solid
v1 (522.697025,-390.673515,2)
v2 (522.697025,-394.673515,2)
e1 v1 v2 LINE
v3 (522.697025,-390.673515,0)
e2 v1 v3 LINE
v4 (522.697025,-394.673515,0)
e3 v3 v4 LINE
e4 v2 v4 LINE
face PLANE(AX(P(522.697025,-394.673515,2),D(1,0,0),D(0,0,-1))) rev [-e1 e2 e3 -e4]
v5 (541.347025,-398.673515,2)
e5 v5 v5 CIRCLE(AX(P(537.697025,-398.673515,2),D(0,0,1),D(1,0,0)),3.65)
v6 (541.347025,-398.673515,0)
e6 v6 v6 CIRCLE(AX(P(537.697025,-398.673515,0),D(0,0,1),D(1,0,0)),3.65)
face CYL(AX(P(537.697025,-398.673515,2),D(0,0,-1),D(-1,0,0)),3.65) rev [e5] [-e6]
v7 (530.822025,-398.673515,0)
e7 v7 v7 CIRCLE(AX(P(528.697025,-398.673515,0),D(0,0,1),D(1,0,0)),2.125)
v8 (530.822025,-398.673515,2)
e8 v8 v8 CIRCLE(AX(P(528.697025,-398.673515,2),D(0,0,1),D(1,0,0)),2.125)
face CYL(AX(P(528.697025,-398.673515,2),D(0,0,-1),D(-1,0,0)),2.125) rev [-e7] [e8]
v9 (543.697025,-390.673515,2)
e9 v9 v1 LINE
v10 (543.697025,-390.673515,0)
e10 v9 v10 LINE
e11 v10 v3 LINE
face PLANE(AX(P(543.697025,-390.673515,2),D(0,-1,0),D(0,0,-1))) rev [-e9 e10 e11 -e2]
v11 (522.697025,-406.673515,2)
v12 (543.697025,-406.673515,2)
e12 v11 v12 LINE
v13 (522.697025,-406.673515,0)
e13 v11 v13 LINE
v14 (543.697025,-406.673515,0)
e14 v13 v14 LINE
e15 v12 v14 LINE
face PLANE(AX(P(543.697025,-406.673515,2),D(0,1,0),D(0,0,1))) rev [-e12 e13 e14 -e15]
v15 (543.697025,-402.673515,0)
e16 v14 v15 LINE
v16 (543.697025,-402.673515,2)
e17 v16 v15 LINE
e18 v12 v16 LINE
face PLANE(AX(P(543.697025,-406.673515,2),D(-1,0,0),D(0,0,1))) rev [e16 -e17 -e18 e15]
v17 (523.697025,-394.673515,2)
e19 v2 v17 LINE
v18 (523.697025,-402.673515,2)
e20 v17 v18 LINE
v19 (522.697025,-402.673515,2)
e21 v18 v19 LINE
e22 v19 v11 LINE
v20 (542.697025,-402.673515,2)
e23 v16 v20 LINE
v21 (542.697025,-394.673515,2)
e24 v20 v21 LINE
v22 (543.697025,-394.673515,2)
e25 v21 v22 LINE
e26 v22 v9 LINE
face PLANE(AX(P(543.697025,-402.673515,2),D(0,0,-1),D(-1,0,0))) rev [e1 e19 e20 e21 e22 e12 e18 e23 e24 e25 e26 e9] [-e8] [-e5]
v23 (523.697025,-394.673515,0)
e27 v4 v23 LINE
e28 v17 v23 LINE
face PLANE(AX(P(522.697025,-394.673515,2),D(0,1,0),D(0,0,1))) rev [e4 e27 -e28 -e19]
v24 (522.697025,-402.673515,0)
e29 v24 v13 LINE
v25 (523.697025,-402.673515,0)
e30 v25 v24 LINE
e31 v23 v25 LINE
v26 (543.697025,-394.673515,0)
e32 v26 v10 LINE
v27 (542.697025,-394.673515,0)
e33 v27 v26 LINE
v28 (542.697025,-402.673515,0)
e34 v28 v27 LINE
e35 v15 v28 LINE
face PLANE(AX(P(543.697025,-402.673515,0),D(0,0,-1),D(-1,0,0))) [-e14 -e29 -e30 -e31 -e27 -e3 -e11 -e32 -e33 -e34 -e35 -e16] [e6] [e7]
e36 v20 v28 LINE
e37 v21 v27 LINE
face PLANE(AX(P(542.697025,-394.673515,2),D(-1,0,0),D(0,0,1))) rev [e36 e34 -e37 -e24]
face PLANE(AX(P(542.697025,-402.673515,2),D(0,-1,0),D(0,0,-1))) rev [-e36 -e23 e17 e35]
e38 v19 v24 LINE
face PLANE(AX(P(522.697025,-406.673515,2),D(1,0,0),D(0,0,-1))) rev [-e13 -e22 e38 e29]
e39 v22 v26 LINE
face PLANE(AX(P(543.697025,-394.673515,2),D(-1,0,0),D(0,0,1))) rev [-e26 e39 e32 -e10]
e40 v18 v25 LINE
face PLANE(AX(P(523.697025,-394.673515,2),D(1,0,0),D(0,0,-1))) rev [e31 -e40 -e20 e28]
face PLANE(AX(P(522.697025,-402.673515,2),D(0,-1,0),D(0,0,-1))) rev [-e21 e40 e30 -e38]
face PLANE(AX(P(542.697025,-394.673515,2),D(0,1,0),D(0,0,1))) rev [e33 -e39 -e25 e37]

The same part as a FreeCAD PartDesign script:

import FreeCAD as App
import Part
import Sketcher
Q = App.Units.Quantity


def add_polygon(sketch, points):
    """Adds a closed chain of lines whose ends are joined by coincident constraints."""
    first, n = sketch.GeometryCount, len(points)
    for a, b in zip(points, points[1:] + points[:1]):
        sketch.addGeometry(Part.LineSegment(App.Vector(*a, 0), App.Vector(*b, 0)), False)
    for i in range(n):
        sketch.addConstraint(Sketcher.Constraint("Coincident", first + i, 2, first + (i + 1) % n, 1))

doc = App.newDocument("Part")
body = doc.addObject("PartDesign::Body", "Body")

# Sketch on XY plane
sketch1 = body.newObject("Sketcher::SketchObject", "Sketch")
sketch1.AttachmentSupport = (doc.getObject("XY_Plane"), [""])
sketch1.MapMode = "FlatFace"
add_polygon(sketch1, [(522.7, -406.7), (543.7, -406.7), (543.7, -402.7), (542.7, -402.7), (542.7, -394.7), (543.7, -394.7), (543.7, -390.7), (522.7, -390.7), (522.7, -394.7), (523.7, -394.7), (523.7, -402.7), (522.7, -402.7)])  # lines 0-11
sketch1.addGeometry(Part.Circle(App.Vector(537.7, -398.7, 0), App.Vector(0, 0, 1), 3.6), False)  # 12
sketch1.addGeometry(Part.Circle(App.Vector(528.7, -398.7, 0), App.Vector(0, 0, 1), 2.1), False)  # 13
sketch1.addConstraint([
    Sketcher.Constraint("Horizontal", 0),
    Sketcher.Constraint("Vertical", 1),
    Sketcher.Constraint("Horizontal", 2),
    Sketcher.Constraint("Vertical", 3),
    Sketcher.Constraint("Horizontal", 4),
    Sketcher.Constraint("Vertical", 5),
    Sketcher.Constraint("Horizontal", 6),
    Sketcher.Constraint("Vertical", 7),
    Sketcher.Constraint("Horizontal", 8),
    Sketcher.Constraint("Vertical", 9),
    Sketcher.Constraint("Horizontal", 10),
    Sketcher.Constraint("Vertical", 11),
    Sketcher.Constraint("Horizontal", 12, 3, 13, 3),
    Sketcher.Constraint("Horizontal", 4, 2, 7, 2),
    Sketcher.Constraint("Horizontal", 2, 2, 9, 2),
    Sketcher.Constraint("Vertical", 1, 2, 4, 2),
    Sketcher.Constraint("Vertical", 7, 2, 10, 2),
    Sketcher.Constraint("Equal", 4, 8),
    Sketcher.Constraint("Equal", 1, 5),
    Sketcher.Constraint("Diameter", 12, Q("7.3 mm")),
    Sketcher.Constraint("Diameter", 13, Q("4.25 mm")),
    Sketcher.Constraint("DistanceX", 0, 1, 0, 2, Q("21 mm")),
    Sketcher.Constraint("DistanceX", 2, 2, 2, 1, Q("1 mm")),
    Sketcher.Constraint("DistanceY", 1, 1, 1, 2, Q("4 mm")),
    Sketcher.Constraint("DistanceY", 3, 1, 3, 2, Q("8 mm")),
    Sketcher.Constraint("DistanceX", 13, 3, 12, 3, Q("9 mm")),
    Sketcher.Constraint("DistanceX", 12, 3, 0, 2, Q("6 mm")),
    Sketcher.Constraint("DistanceY", 0, 2, 12, 3, Q("8 mm")),
    Sketcher.Constraint("DistanceX", -1, 1, 12, 3, Q("537.697025 mm")),
    Sketcher.Constraint("DistanceY", 12, 3, -1, 1, Q("398.673515 mm")),
])
pad1 = body.newObject("PartDesign::Pad", "Pad")
pad1.Profile = sketch1
pad1.Length = 2

doc.recompute()
